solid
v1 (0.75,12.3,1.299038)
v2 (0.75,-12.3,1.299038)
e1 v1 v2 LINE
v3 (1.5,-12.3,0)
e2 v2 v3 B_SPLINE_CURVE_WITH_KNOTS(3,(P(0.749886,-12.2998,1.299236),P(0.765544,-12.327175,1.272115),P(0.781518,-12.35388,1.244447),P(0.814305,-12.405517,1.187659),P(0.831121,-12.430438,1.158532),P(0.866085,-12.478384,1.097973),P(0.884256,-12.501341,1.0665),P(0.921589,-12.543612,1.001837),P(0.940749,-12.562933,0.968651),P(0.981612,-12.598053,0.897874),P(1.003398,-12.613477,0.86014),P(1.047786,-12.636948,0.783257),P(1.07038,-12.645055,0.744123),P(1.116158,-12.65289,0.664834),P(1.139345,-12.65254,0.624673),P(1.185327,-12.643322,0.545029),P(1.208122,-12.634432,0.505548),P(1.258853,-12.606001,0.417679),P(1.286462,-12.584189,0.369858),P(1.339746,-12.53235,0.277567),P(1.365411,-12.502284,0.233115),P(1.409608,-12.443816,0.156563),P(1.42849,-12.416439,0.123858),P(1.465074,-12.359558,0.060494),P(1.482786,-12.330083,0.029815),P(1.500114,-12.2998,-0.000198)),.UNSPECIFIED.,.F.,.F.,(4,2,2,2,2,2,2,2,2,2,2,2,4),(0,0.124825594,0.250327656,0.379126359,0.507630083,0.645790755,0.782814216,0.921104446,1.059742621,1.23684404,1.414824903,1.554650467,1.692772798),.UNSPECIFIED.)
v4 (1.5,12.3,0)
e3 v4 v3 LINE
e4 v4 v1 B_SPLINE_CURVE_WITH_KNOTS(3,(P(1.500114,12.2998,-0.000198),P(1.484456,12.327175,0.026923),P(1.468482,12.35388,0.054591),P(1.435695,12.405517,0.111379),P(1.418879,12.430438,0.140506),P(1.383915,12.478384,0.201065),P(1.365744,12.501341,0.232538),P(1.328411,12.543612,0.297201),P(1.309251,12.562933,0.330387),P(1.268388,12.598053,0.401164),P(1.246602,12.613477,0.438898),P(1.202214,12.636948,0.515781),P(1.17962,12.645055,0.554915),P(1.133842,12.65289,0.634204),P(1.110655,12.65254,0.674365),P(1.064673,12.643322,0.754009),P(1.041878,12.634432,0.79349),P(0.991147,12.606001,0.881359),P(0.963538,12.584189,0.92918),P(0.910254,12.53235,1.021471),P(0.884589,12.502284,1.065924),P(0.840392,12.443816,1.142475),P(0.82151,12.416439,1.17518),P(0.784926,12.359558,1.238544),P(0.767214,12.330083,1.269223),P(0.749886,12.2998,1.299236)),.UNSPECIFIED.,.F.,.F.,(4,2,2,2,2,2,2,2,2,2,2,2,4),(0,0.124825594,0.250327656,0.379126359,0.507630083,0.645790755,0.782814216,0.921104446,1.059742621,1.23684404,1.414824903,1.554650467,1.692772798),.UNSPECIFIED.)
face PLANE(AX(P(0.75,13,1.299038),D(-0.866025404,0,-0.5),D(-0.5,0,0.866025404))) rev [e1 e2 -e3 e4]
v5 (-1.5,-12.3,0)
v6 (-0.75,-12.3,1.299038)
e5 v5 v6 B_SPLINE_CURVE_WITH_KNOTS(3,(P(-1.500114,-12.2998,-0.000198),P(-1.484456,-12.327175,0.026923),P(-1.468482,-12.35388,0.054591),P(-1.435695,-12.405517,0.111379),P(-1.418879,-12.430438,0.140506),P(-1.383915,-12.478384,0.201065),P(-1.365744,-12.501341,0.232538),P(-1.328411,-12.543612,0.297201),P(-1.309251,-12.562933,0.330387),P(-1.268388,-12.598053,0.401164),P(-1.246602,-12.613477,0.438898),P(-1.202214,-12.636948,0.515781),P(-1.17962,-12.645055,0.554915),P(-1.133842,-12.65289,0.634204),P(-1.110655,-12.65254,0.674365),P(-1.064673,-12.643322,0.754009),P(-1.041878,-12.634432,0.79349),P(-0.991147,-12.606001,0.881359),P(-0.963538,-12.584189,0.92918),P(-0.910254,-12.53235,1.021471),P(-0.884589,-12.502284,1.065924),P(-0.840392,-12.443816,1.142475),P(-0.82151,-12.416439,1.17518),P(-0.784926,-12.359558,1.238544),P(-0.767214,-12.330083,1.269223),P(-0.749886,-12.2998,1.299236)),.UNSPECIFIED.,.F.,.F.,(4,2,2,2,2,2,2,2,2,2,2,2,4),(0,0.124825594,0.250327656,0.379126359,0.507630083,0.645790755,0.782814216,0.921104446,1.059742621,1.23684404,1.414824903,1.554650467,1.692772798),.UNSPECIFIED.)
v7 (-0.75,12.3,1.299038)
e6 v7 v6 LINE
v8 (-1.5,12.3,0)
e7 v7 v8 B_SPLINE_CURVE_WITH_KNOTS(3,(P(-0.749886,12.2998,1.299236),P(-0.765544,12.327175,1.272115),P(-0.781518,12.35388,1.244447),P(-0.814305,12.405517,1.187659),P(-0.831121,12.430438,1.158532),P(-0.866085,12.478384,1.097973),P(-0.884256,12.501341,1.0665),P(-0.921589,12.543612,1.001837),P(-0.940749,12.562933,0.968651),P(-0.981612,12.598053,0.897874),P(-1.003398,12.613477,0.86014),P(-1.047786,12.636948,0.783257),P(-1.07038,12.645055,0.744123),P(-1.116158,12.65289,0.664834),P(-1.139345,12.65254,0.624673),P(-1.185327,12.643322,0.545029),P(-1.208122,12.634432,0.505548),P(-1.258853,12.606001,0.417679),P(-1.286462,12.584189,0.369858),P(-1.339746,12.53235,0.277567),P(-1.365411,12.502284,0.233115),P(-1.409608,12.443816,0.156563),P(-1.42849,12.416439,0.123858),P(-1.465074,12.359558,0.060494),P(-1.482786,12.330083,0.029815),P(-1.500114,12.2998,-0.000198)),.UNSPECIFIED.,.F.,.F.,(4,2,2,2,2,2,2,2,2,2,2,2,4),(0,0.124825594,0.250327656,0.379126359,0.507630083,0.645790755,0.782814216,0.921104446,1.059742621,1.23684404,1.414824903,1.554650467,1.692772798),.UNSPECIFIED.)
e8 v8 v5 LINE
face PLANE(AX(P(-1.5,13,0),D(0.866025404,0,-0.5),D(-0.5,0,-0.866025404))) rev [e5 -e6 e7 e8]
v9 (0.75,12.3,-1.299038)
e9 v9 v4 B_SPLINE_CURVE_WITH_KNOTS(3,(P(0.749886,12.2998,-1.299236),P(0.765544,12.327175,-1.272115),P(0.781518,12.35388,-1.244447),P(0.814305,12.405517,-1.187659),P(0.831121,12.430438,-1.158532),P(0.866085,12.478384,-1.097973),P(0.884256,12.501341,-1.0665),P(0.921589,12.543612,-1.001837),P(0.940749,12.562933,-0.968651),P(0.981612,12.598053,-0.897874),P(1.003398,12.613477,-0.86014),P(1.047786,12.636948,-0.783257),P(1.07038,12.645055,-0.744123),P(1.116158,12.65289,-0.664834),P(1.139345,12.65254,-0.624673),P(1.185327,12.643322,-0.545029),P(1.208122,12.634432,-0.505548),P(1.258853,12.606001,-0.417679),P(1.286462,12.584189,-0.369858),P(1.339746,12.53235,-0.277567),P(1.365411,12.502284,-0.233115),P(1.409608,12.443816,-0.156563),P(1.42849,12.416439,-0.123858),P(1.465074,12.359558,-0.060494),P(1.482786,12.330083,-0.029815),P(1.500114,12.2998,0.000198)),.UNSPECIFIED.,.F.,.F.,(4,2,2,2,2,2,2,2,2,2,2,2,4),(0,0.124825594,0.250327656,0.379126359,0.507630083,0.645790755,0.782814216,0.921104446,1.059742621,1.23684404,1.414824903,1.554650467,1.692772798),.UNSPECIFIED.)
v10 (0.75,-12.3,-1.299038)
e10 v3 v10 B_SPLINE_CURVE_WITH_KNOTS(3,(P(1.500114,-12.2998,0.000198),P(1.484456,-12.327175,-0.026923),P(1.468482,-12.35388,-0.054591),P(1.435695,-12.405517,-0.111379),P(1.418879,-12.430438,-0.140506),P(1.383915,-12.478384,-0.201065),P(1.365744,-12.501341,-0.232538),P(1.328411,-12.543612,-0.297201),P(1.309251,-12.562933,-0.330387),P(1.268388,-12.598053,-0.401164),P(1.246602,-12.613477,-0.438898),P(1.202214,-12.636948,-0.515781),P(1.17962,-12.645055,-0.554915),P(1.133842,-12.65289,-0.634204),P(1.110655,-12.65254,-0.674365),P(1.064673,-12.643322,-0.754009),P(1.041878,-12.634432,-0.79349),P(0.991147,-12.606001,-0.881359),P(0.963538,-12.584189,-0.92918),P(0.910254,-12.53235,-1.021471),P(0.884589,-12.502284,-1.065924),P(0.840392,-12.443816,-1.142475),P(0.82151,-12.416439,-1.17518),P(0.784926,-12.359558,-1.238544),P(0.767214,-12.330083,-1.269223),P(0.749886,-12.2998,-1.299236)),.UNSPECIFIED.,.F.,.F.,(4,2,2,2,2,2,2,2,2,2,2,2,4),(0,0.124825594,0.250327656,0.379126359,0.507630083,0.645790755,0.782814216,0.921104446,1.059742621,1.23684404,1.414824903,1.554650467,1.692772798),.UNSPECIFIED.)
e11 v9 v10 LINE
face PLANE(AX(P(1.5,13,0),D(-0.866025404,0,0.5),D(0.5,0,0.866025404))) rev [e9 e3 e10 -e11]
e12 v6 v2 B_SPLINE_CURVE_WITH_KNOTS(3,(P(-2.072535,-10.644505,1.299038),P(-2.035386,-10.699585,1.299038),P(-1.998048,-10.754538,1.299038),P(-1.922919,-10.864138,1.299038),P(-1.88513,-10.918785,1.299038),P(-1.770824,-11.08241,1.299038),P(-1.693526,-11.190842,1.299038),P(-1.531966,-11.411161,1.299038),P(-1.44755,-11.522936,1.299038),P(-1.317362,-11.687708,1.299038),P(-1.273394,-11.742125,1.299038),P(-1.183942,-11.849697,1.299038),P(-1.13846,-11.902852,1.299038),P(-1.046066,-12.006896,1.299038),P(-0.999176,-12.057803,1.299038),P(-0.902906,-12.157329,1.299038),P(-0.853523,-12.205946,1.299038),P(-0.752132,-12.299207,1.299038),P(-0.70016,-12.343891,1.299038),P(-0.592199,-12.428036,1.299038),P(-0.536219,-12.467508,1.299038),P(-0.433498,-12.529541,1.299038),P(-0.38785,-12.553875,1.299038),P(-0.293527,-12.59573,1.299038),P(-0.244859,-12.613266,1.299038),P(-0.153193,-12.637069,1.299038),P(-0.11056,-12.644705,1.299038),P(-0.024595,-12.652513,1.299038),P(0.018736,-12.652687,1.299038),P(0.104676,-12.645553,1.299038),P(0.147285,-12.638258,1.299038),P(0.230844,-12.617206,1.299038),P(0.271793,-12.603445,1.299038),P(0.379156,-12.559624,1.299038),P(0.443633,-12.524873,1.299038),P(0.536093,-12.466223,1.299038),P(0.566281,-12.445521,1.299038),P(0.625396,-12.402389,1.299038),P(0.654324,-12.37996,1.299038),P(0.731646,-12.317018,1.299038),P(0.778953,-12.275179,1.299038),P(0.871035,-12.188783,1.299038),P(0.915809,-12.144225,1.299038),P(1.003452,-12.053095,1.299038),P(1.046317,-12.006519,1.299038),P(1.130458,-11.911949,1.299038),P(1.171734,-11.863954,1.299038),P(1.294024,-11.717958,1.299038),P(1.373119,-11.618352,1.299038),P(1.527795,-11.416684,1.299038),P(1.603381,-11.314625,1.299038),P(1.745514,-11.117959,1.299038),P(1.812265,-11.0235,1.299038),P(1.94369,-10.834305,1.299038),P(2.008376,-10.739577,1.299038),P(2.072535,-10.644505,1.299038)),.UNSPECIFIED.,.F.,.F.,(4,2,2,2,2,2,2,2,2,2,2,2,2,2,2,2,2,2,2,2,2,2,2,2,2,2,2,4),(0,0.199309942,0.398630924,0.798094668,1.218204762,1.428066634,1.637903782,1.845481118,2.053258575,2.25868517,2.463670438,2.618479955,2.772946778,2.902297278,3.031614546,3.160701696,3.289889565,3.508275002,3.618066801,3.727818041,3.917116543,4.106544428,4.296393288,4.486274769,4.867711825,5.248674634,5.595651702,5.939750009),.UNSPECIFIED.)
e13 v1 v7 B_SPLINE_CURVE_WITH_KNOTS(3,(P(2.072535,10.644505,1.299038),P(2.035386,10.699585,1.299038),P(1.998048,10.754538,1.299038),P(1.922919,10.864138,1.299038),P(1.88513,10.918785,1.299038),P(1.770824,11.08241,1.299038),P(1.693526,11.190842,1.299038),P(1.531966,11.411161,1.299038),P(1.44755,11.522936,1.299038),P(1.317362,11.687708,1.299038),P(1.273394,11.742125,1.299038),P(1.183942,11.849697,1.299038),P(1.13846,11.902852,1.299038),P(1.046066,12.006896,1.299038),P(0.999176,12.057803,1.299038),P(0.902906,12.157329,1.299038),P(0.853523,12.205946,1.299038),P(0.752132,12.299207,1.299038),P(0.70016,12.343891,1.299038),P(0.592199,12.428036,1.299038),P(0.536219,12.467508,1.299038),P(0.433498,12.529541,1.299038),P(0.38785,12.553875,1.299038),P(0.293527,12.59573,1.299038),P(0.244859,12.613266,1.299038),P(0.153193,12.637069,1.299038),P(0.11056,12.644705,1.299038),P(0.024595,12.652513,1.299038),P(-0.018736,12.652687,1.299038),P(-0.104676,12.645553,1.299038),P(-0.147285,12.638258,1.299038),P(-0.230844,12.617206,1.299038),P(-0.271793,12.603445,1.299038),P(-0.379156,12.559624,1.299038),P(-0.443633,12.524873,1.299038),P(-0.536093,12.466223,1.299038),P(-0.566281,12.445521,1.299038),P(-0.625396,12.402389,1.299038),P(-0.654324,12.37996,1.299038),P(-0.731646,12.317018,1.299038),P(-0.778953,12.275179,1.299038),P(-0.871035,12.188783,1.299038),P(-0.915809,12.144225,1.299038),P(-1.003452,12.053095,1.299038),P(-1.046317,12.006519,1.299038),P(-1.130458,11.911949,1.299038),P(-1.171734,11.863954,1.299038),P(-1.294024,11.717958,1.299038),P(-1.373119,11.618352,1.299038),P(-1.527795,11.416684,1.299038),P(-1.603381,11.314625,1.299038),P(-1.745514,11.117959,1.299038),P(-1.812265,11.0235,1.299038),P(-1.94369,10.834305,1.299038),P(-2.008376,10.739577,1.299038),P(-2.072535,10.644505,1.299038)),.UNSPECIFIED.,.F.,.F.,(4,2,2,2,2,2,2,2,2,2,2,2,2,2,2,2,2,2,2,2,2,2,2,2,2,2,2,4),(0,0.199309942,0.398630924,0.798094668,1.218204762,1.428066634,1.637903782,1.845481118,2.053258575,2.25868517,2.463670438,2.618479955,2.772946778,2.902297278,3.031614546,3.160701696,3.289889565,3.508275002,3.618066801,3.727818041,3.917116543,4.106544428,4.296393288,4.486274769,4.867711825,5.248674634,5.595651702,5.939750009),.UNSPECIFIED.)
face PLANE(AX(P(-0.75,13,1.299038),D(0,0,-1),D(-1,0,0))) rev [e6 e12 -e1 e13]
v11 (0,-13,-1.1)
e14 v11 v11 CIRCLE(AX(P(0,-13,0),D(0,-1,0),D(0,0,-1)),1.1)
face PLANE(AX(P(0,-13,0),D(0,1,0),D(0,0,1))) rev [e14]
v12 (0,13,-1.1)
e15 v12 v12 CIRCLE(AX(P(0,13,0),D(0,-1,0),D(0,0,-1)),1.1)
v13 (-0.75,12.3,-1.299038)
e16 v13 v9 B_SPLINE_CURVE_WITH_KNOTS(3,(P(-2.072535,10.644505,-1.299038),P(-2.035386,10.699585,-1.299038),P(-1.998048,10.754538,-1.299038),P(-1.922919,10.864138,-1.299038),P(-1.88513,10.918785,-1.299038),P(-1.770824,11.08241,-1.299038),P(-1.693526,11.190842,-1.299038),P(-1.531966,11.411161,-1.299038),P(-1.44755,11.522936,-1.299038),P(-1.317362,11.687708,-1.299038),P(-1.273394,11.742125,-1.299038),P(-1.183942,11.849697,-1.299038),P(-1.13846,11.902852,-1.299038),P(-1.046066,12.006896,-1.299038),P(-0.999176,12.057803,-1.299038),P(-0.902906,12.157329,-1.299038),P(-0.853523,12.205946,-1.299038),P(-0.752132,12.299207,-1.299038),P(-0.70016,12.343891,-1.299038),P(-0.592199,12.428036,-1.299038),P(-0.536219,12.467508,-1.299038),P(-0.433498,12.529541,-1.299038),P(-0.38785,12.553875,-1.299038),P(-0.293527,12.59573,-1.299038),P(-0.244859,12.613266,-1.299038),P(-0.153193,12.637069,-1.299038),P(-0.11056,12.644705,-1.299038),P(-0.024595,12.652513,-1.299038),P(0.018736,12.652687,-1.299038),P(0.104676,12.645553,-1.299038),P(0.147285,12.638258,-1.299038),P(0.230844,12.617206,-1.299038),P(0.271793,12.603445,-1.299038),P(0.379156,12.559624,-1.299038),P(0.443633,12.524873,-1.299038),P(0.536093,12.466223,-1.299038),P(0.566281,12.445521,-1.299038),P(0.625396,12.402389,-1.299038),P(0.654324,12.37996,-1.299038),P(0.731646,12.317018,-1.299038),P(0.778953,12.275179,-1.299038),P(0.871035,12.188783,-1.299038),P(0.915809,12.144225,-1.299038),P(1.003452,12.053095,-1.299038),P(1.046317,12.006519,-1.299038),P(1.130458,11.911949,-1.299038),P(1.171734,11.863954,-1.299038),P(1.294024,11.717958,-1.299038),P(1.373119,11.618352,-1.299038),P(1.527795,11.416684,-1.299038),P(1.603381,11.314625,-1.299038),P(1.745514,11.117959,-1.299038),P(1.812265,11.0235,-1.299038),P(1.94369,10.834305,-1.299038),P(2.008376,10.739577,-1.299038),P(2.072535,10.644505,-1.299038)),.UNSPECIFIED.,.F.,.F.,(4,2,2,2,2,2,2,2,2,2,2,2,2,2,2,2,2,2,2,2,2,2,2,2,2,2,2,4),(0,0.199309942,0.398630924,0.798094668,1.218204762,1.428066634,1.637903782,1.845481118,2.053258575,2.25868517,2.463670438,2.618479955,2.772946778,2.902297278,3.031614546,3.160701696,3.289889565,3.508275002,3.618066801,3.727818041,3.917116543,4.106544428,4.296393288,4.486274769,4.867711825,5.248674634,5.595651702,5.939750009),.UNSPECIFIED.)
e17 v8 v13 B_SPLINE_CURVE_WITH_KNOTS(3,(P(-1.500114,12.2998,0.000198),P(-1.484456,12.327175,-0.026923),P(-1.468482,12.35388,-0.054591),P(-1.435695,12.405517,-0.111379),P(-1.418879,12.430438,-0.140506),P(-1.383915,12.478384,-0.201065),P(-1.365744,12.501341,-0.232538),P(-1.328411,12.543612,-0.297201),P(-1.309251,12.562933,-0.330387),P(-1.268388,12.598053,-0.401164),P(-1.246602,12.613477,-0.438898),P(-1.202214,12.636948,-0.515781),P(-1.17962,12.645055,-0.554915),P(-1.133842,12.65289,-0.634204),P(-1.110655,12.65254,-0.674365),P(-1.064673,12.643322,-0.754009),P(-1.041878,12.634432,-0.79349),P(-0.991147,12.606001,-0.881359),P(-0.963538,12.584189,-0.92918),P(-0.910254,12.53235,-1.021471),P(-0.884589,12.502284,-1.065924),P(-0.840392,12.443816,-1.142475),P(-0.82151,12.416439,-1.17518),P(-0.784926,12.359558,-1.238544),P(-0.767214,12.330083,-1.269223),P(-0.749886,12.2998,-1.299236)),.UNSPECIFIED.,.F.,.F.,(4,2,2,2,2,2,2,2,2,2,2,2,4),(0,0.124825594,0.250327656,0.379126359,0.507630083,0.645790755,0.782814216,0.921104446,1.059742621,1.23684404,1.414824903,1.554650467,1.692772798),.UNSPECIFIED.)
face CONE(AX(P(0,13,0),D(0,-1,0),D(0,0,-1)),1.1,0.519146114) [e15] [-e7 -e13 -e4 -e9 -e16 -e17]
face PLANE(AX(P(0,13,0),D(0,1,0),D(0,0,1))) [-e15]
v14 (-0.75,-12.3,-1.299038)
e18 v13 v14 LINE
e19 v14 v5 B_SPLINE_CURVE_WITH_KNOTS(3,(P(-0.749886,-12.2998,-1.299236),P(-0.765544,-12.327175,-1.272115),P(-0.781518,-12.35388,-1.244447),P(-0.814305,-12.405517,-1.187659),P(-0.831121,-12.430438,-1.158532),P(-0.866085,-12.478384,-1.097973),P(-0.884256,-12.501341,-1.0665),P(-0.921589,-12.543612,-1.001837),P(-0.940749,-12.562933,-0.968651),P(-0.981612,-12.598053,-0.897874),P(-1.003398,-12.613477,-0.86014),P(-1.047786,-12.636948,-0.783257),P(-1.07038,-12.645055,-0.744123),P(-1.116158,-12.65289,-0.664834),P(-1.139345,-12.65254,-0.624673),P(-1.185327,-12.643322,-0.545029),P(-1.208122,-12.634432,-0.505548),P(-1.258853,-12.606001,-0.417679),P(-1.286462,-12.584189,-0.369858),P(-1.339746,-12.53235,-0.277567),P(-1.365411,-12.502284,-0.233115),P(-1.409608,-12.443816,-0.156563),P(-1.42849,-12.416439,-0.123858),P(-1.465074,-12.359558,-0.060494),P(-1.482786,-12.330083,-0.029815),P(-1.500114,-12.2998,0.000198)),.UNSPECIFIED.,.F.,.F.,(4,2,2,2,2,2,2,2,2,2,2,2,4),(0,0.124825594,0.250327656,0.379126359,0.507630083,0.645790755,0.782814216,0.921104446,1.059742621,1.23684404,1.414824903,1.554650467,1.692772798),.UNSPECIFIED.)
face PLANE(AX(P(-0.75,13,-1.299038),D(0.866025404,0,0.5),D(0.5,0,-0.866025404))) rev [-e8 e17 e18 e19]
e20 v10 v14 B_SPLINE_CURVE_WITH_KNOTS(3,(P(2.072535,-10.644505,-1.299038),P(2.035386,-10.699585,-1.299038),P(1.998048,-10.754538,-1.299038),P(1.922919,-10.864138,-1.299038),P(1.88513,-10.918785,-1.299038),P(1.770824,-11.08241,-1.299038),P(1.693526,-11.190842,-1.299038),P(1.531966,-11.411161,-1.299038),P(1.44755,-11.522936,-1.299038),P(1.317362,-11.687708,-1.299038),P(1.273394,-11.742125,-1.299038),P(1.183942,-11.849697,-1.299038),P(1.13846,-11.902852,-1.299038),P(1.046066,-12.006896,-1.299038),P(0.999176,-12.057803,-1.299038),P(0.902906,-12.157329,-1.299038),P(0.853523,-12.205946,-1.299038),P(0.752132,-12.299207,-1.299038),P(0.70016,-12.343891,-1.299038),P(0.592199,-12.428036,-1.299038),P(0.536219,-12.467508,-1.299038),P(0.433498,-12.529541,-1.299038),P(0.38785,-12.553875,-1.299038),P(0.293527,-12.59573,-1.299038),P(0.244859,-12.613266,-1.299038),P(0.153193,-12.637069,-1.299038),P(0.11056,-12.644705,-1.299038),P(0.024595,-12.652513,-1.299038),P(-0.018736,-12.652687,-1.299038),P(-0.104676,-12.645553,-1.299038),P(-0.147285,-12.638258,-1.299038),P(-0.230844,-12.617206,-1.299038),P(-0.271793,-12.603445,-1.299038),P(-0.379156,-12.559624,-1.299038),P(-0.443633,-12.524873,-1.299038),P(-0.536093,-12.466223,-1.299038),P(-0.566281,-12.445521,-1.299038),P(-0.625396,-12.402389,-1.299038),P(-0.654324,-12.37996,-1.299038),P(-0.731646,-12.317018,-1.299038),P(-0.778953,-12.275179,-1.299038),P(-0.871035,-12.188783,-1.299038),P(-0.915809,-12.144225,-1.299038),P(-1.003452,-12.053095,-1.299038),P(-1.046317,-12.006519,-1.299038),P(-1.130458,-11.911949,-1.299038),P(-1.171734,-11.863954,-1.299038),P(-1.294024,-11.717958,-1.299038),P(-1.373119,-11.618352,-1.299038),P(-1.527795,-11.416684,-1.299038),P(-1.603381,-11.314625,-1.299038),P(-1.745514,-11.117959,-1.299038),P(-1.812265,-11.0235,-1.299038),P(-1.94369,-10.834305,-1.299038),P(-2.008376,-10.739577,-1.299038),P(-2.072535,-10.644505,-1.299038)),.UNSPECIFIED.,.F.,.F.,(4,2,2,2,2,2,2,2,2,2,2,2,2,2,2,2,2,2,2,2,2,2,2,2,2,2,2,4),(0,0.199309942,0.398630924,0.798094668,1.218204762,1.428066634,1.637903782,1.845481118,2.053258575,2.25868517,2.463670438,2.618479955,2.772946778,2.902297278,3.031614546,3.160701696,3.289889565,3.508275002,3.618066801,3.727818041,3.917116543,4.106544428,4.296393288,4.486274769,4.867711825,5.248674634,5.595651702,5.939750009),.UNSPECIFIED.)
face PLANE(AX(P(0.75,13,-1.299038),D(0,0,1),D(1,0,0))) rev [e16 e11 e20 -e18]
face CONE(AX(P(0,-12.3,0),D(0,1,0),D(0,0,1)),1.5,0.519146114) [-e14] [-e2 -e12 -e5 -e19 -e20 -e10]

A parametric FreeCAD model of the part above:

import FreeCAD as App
import Part
import Sketcher
Q = App.Units.Quantity

doc = App.newDocument("Part")
body = doc.addObject("PartDesign::Body", "Body")

sketch1 = doc.addObject("Sketcher::SketchObject", "Sketch")
body.addObject(sketch1)
sketch1.AttachmentSupport = (doc.XZ_Plane, [""])
sketch1.MapMode = "FlatFace"
sketch1.addGeometry(Part.LineSegment(App.Vector(1.5, 0, 0), App.Vector(0.8, -1.3, 0)), False)
sketch1.addGeometry(Part.LineSegment(App.Vector(0.8, -1.3, 0), App.Vector(-0.8, -1.3, 0)), False)
sketch1.addGeometry(Part.LineSegment(App.Vector(-0.8, -1.3, 0), App.Vector(-1.5, 0, 0)), False)
sketch1.addGeometry(Part.LineSegment(App.Vector(-1.5, 0, 0), App.Vector(-0.8, 1.3, 0)), False)
sketch1.addGeometry(Part.LineSegment(App.Vector(-0.8, 1.3, 0), App.Vector(0.8, 1.3, 0)), False)
sketch1.addGeometry(Part.LineSegment(App.Vector(0.8, 1.3, 0), App.Vector(1.5, 0, 0)), False)
sketch1.addConstraint(Sketcher.Constraint("Coincident", 0, 2, 1, 1))
sketch1.addConstraint(Sketcher.Constraint("Coincident", 1, 2, 2, 1))
sketch1.addConstraint(Sketcher.Constraint("Coincident", 2, 2, 3, 1))
sketch1.addConstraint(Sketcher.Constraint("Coincident", 3, 2, 4, 1))
sketch1.addConstraint(Sketcher.Constraint("Coincident", 4, 2, 5, 1))
sketch1.addConstraint(Sketcher.Constraint("Coincident", 5, 2, 0, 1))
sketch1.addConstraint(Sketcher.Constraint("Horizontal", 1))
sketch1.addConstraint(Sketcher.Constraint("Horizontal", 4))
sketch1.addConstraint(Sketcher.Constraint("Symmetric", 0, 2, 3, 2, -1, 1))
sketch1.addConstraint(Sketcher.Constraint("Symmetric", 2, 2, 5, 2, -1, 1))
sketch1.addConstraint(Sketcher.Constraint("PointOnObject", 2, 2, -1))
sketch1.addConstraint(Sketcher.Constraint("Parallel", 2, 5))
sketch1.addConstraint(Sketcher.Constraint("Vertical", 1, 2, 3, 2))
sketch1.addConstraint(Sketcher.Constraint("Angle", 0, Q("-120 deg")))
sketch1.addConstraint(Sketcher.Constraint("DistanceX", 1, 2, 1, 1, Q("1.5 mm")))
sketch1.addConstraint(Sketcher.Constraint("DistanceX", 2, 2, 5, 2, Q("3 mm")))
pad1 = doc.addObject("PartDesign::Pad", "Pad")
body.addObject(pad1)
pad1.Profile = sketch1
pad1.Length = 26
pad1.Midplane = True

sketch2 = doc.addObject("Sketcher::SketchObject", "Sketch001")
body.addObject(sketch2)
sketch2.AttachmentSupport = (doc.XY_Plane, [""])
sketch2.MapMode = "FlatFace"
sketch2.addGeometry(Part.LineSegment(App.Vector(1.5, 12.3, 0), App.Vector(1.5, 13, 0)), False)
sketch2.addGeometry(Part.LineSegment(App.Vector(1.5, 13, 0), App.Vector(1.1, 13, 0)), False)
sketch2.addGeometry(Part.LineSegment(App.Vector(1.1, 13, 0), App.Vector(1.5, 12.3, 0)), False)
sketch2.addGeometry(Part.LineSegment(App.Vector(1.5, -13, 0), App.Vector(1.5, -12.3, 0)), False)
sketch2.addGeometry(Part.LineSegment(App.Vector(1.5, -12.3, 0), App.Vector(1.1, -13, 0)), False)
sketch2.addGeometry(Part.LineSegment(App.Vector(1.1, -13, 0), App.Vector(1.5, -13, 0)), False)
sketch2.addConstraint(Sketcher.Constraint("Coincident", 0, 2, 1, 1))
sketch2.addConstraint(Sketcher.Constraint("Coincident", 1, 2, 2, 1))
sketch2.addConstraint(Sketcher.Constraint("Coincident", 2, 2, 0, 1))
sketch2.addConstraint(Sketcher.Constraint("Coincident", 3, 2, 4, 1))
sketch2.addConstraint(Sketcher.Constraint("Coincident", 4, 2, 5, 1))
sketch2.addConstraint(Sketcher.Constraint("Coincident", 5, 2, 3, 1))
sketch2.addConstraint(Sketcher.Constraint("Vertical", 0))
sketch2.addConstraint(Sketcher.Constraint("Horizontal", 1))
sketch2.addConstraint(Sketcher.Constraint("Vertical", 3))
sketch2.addConstraint(Sketcher.Constraint("Horizontal", 5))
sketch2.addConstraint(Sketcher.Constraint("Symmetric", 2, 2, 3, 2, -1))
sketch2.addConstraint(Sketcher.Constraint("Symmetric", 1, 2, 4, 2, -1))
sketch2.addConstraint(Sketcher.Constraint("DistanceX", 1, 2, 1, 1, Q("0.4 mm")))
sketch2.addConstraint(Sketcher.Constraint("DistanceY", 0, 1, 0, 2, Q("0.7 mm")))
sketch2.addConstraint(Sketcher.Constraint("DistanceY", -1, 1, 0, 2, Q("13 mm")))
sketch2.addConstraint(Sketcher.Constraint("DistanceX", -1, 1, 0, 2, Q("1.5 mm")))
groove = doc.addObject("PartDesign::Groove", "Groove")
body.addObject(groove)
groove.Profile = sketch2
groove.ReferenceAxis = (sketch2, ["V_Axis"])
groove.Angle = 360

doc.recompute()
